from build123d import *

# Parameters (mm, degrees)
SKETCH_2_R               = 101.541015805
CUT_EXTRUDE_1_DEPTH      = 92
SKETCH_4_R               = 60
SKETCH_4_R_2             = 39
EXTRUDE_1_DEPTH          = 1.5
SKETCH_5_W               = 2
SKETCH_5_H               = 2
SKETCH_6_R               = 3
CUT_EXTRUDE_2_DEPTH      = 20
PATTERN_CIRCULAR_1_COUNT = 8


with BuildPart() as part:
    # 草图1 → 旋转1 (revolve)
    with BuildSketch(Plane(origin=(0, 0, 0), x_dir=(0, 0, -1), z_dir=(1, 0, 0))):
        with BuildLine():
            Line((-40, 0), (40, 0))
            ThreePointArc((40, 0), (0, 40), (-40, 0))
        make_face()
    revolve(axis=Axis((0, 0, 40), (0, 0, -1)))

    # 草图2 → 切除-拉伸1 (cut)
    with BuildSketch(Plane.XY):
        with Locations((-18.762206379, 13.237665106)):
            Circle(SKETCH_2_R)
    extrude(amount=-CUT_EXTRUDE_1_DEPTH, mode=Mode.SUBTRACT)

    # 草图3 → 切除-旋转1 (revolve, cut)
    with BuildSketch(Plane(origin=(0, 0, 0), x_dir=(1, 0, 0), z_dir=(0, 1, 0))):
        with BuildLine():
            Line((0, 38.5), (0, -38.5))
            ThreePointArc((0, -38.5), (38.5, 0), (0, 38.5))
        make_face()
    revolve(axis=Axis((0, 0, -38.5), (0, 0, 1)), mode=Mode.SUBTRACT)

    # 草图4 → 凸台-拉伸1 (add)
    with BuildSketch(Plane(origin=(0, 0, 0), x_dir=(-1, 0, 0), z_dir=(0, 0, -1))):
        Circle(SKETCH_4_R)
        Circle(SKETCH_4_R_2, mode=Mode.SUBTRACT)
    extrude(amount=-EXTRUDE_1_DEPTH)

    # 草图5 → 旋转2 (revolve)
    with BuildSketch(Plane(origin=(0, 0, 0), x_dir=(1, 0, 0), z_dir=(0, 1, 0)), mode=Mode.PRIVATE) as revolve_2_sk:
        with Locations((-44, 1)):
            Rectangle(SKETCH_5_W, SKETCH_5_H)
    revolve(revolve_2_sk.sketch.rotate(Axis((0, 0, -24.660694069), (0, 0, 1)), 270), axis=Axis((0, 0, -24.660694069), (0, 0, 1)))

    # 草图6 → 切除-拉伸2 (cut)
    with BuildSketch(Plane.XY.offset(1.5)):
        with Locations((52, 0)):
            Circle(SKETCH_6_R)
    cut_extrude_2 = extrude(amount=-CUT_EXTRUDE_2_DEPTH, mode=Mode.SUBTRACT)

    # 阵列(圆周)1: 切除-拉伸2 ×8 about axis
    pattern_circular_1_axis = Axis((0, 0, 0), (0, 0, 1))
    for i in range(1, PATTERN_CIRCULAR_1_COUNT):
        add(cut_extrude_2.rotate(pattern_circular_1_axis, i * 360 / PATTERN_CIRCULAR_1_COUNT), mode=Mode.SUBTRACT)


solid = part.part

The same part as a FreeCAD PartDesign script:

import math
import FreeCAD as App
import Part
import Sketcher

V = App.Vector


def add_polygon(sketch, points):
    """Adds a closed chain of lines whose ends are joined by coincident constraints."""
    first, n = sketch.GeometryCount, len(points)
    for a, b in zip(points, points[1:] + points[:1]):
        sketch.addGeometry(Part.LineSegment(App.Vector(*a, 0), App.Vector(*b, 0)), False)
    for i in range(n):
        sketch.addConstraint(Sketcher.Constraint("Coincident", first + i, 2, first + (i + 1) % n, 1))

doc = App.newDocument("Part")
body = doc.addObject("PartDesign::Body", "Body")

sketch1 = doc.addObject("Sketcher::SketchObject", "Sketch")
body.addObject(sketch1)
sketch1.AttachmentSupport = (doc.YZ_Plane, [""])
sketch1.MapMode = "FlatFace"
sketch1.addGeometry(Part.LineSegment(V(0, 40, 0), V(0, -40, 0)), False)
sketch1.addGeometry(Part.ArcOfCircle(Part.Circle(V(0, 0, 0), V(0, 0, 1), 40), math.radians(-90), math.radians(90)), False)
sketch1.addConstraint(Sketcher.Constraint("Coincident", 0, 1, 1, 2))
sketch1.addConstraint(Sketcher.Constraint("Coincident", 1, 1, 0, 2))
sketch1.addConstraint(Sketcher.Constraint("Vertical", 0))
sketch1.addConstraint(Sketcher.Constraint("Coincident", 1, 3, -1, 1))
sketch1.addConstraint(Sketcher.Constraint("PointOnObject", 0, 1, -2))
sketch1.addConstraint(Sketcher.Constraint("Radius", 1, 40.0))
revolution = doc.addObject("PartDesign::Revolution", "Revolution")
body.addObject(revolution)
revolution.Profile = sketch1
revolution.ReferenceAxis = (sketch1, ["V_Axis"])
revolution.Angle = 360

sketch2 = doc.addObject("Sketcher::SketchObject", "Sketch001")
body.addObject(sketch2)
sketch2.AttachmentSupport = (doc.XY_Plane, [""])
sketch2.MapMode = "FlatFace"
sketch2.addGeometry(Part.Circle(V(-18.762206, 13.237665, 0), V(0, 0, 1), 101.541016), False)
sketch2.addConstraint(Sketcher.Constraint("Diameter", 0, 203.082032))
sketch2.addConstraint(Sketcher.Constraint("DistanceX", 0, 3, -1, 1, 18.762206))
sketch2.addConstraint(Sketcher.Constraint("DistanceY", -1, 1, 0, 3, 13.237665))
pocket1 = doc.addObject("PartDesign::Pocket", "Pocket")
body.addObject(pocket1)
pocket1.Profile = sketch2
pocket1.Length = 92

sketch3 = doc.addObject("Sketcher::SketchObject", "Sketch002")
body.addObject(sketch3)
sketch3.AttachmentSupport = (doc.XZ_Plane, [""])
sketch3.MapMode = "FlatFace"
sketch3.addGeometry(Part.LineSegment(V(0, -38.5, 0), V(0, 38.5, 0)), False)
sketch3.addGeometry(Part.ArcOfCircle(Part.Circle(V(0, 0, 0), V(0, 0, 1), 38.5), math.radians(-90), math.radians(90)), False)
sketch3.addConstraint(Sketcher.Constraint("Coincident", 0, 1, 1, 1))
sketch3.addConstraint(Sketcher.Constraint("Coincident", 1, 2, 0, 2))
sketch3.addConstraint(Sketcher.Constraint("Vertical", 0))
sketch3.addConstraint(Sketcher.Constraint("Coincident", 1, 3, -1, 1))
sketch3.addConstraint(Sketcher.Constraint("PointOnObject", 0, 1, -2))
sketch3.addConstraint(Sketcher.Constraint("Radius", 1, 38.5))
groove = doc.addObject("PartDesign::Groove", "Groove")
body.addObject(groove)
groove.Profile = sketch3
groove.ReferenceAxis = (sketch3, ["V_Axis"])
groove.Angle = 360

sketch4 = doc.addObject("Sketcher::SketchObject", "Sketch003")
body.addObject(sketch4)
sketch4.AttachmentSupport = (doc.XY_Plane, [""])
sketch4.MapMode = "FlatFace"
sketch4.addGeometry(Part.Circle(V(0, 0, 0), V(0, 0, 1), 60), False)
sketch4.addGeometry(Part.Circle(V(0, 0, 0), V(0, 0, 1), 39), False)
sketch4.addConstraint(Sketcher.Constraint("Coincident", 0, 3, -1, 1))
sketch4.addConstraint(Sketcher.Constraint("Coincident", 1, 3, -1, 1))
sketch4.addConstraint(Sketcher.Constraint("Diameter", 0, 120.0))
sketch4.addConstraint(Sketcher.Constraint("Diameter", 1, 78.0))
pad1 = doc.addObject("PartDesign::Pad", "Pad")
body.addObject(pad1)
pad1.Profile = sketch4
pad1.Length = 1.5

sketch5 = doc.addObject("Sketcher::SketchObject", "Sketch004")
body.addObject(sketch5)
sketch5.AttachmentSupport = (doc.XZ_Plane, [""])
sketch5.MapMode = "FlatFace"
add_polygon(sketch5, [(-45, -2), (-45, 0), (-43, 0), (-43, -2)])
sketch5.addConstraint(Sketcher.Constraint("Vertical", 0))
sketch5.addConstraint(Sketcher.Constraint("Horizontal", 1))
sketch5.addConstraint(Sketcher.Constraint("Vertical", 2))
sketch5.addConstraint(Sketcher.Constraint("Horizontal", 3))
sketch5.addConstraint(Sketcher.Constraint("PointOnObject", 0, 2, -1))
sketch5.addConstraint(Sketcher.Constraint("Equal", 3, 0))
sketch5.addConstraint(Sketcher.Constraint("DistanceX", 1, 1, 1, 2, 2.0))
sketch5.addConstraint(Sketcher.Constraint("DistanceX", 0, 2, -1, 1, 45.0))
revolution2 = doc.addObject("PartDesign::Revolution", "Revolution001")
body.addObject(revolution2)
revolution2.Profile = sketch5
revolution2.ReferenceAxis = (sketch5, ["V_Axis"])
revolution2.Angle = 360

sketch6 = doc.addObject("Sketcher::SketchObject", "Sketch005")
body.addObject(sketch6)
sketch6.AttachmentSupport = (doc.XY_Plane, [""])
sketch6.MapMode = "FlatFace"
sketch6.AttachmentOffset = App.Placement(V(0, 0, 1.5), App.Rotation())
sketch6.addGeometry(Part.Circle(V(52, 0, 0), V(0, 0, 1), 3), False)
sketch6.addConstraint(Sketcher.Constraint("PointOnObject", 0, 3, -1))
sketch6.addConstraint(Sketcher.Constraint("Diameter", 0, 6.0))
sketch6.addConstraint(Sketcher.Constraint("DistanceX", -1, 1, 0, 3, 52.0))
pocket2 = doc.addObject("PartDesign::Pocket", "Pocket001")
body.addObject(pocket2)
pocket2.Profile = sketch6
pocket2.Length = 20
doc.recompute()

polarpattern = doc.addObject("PartDesign::PolarPattern", "PolarPattern")
body.addObject(polarpattern)
polarpattern.Originals = [pocket2]
polarpattern.Axis = (doc.Z_Axis, [""])
polarpattern.Angle = 360
polarpattern.Occurrences = 8
body.Tip = polarpattern

doc.recompute()
